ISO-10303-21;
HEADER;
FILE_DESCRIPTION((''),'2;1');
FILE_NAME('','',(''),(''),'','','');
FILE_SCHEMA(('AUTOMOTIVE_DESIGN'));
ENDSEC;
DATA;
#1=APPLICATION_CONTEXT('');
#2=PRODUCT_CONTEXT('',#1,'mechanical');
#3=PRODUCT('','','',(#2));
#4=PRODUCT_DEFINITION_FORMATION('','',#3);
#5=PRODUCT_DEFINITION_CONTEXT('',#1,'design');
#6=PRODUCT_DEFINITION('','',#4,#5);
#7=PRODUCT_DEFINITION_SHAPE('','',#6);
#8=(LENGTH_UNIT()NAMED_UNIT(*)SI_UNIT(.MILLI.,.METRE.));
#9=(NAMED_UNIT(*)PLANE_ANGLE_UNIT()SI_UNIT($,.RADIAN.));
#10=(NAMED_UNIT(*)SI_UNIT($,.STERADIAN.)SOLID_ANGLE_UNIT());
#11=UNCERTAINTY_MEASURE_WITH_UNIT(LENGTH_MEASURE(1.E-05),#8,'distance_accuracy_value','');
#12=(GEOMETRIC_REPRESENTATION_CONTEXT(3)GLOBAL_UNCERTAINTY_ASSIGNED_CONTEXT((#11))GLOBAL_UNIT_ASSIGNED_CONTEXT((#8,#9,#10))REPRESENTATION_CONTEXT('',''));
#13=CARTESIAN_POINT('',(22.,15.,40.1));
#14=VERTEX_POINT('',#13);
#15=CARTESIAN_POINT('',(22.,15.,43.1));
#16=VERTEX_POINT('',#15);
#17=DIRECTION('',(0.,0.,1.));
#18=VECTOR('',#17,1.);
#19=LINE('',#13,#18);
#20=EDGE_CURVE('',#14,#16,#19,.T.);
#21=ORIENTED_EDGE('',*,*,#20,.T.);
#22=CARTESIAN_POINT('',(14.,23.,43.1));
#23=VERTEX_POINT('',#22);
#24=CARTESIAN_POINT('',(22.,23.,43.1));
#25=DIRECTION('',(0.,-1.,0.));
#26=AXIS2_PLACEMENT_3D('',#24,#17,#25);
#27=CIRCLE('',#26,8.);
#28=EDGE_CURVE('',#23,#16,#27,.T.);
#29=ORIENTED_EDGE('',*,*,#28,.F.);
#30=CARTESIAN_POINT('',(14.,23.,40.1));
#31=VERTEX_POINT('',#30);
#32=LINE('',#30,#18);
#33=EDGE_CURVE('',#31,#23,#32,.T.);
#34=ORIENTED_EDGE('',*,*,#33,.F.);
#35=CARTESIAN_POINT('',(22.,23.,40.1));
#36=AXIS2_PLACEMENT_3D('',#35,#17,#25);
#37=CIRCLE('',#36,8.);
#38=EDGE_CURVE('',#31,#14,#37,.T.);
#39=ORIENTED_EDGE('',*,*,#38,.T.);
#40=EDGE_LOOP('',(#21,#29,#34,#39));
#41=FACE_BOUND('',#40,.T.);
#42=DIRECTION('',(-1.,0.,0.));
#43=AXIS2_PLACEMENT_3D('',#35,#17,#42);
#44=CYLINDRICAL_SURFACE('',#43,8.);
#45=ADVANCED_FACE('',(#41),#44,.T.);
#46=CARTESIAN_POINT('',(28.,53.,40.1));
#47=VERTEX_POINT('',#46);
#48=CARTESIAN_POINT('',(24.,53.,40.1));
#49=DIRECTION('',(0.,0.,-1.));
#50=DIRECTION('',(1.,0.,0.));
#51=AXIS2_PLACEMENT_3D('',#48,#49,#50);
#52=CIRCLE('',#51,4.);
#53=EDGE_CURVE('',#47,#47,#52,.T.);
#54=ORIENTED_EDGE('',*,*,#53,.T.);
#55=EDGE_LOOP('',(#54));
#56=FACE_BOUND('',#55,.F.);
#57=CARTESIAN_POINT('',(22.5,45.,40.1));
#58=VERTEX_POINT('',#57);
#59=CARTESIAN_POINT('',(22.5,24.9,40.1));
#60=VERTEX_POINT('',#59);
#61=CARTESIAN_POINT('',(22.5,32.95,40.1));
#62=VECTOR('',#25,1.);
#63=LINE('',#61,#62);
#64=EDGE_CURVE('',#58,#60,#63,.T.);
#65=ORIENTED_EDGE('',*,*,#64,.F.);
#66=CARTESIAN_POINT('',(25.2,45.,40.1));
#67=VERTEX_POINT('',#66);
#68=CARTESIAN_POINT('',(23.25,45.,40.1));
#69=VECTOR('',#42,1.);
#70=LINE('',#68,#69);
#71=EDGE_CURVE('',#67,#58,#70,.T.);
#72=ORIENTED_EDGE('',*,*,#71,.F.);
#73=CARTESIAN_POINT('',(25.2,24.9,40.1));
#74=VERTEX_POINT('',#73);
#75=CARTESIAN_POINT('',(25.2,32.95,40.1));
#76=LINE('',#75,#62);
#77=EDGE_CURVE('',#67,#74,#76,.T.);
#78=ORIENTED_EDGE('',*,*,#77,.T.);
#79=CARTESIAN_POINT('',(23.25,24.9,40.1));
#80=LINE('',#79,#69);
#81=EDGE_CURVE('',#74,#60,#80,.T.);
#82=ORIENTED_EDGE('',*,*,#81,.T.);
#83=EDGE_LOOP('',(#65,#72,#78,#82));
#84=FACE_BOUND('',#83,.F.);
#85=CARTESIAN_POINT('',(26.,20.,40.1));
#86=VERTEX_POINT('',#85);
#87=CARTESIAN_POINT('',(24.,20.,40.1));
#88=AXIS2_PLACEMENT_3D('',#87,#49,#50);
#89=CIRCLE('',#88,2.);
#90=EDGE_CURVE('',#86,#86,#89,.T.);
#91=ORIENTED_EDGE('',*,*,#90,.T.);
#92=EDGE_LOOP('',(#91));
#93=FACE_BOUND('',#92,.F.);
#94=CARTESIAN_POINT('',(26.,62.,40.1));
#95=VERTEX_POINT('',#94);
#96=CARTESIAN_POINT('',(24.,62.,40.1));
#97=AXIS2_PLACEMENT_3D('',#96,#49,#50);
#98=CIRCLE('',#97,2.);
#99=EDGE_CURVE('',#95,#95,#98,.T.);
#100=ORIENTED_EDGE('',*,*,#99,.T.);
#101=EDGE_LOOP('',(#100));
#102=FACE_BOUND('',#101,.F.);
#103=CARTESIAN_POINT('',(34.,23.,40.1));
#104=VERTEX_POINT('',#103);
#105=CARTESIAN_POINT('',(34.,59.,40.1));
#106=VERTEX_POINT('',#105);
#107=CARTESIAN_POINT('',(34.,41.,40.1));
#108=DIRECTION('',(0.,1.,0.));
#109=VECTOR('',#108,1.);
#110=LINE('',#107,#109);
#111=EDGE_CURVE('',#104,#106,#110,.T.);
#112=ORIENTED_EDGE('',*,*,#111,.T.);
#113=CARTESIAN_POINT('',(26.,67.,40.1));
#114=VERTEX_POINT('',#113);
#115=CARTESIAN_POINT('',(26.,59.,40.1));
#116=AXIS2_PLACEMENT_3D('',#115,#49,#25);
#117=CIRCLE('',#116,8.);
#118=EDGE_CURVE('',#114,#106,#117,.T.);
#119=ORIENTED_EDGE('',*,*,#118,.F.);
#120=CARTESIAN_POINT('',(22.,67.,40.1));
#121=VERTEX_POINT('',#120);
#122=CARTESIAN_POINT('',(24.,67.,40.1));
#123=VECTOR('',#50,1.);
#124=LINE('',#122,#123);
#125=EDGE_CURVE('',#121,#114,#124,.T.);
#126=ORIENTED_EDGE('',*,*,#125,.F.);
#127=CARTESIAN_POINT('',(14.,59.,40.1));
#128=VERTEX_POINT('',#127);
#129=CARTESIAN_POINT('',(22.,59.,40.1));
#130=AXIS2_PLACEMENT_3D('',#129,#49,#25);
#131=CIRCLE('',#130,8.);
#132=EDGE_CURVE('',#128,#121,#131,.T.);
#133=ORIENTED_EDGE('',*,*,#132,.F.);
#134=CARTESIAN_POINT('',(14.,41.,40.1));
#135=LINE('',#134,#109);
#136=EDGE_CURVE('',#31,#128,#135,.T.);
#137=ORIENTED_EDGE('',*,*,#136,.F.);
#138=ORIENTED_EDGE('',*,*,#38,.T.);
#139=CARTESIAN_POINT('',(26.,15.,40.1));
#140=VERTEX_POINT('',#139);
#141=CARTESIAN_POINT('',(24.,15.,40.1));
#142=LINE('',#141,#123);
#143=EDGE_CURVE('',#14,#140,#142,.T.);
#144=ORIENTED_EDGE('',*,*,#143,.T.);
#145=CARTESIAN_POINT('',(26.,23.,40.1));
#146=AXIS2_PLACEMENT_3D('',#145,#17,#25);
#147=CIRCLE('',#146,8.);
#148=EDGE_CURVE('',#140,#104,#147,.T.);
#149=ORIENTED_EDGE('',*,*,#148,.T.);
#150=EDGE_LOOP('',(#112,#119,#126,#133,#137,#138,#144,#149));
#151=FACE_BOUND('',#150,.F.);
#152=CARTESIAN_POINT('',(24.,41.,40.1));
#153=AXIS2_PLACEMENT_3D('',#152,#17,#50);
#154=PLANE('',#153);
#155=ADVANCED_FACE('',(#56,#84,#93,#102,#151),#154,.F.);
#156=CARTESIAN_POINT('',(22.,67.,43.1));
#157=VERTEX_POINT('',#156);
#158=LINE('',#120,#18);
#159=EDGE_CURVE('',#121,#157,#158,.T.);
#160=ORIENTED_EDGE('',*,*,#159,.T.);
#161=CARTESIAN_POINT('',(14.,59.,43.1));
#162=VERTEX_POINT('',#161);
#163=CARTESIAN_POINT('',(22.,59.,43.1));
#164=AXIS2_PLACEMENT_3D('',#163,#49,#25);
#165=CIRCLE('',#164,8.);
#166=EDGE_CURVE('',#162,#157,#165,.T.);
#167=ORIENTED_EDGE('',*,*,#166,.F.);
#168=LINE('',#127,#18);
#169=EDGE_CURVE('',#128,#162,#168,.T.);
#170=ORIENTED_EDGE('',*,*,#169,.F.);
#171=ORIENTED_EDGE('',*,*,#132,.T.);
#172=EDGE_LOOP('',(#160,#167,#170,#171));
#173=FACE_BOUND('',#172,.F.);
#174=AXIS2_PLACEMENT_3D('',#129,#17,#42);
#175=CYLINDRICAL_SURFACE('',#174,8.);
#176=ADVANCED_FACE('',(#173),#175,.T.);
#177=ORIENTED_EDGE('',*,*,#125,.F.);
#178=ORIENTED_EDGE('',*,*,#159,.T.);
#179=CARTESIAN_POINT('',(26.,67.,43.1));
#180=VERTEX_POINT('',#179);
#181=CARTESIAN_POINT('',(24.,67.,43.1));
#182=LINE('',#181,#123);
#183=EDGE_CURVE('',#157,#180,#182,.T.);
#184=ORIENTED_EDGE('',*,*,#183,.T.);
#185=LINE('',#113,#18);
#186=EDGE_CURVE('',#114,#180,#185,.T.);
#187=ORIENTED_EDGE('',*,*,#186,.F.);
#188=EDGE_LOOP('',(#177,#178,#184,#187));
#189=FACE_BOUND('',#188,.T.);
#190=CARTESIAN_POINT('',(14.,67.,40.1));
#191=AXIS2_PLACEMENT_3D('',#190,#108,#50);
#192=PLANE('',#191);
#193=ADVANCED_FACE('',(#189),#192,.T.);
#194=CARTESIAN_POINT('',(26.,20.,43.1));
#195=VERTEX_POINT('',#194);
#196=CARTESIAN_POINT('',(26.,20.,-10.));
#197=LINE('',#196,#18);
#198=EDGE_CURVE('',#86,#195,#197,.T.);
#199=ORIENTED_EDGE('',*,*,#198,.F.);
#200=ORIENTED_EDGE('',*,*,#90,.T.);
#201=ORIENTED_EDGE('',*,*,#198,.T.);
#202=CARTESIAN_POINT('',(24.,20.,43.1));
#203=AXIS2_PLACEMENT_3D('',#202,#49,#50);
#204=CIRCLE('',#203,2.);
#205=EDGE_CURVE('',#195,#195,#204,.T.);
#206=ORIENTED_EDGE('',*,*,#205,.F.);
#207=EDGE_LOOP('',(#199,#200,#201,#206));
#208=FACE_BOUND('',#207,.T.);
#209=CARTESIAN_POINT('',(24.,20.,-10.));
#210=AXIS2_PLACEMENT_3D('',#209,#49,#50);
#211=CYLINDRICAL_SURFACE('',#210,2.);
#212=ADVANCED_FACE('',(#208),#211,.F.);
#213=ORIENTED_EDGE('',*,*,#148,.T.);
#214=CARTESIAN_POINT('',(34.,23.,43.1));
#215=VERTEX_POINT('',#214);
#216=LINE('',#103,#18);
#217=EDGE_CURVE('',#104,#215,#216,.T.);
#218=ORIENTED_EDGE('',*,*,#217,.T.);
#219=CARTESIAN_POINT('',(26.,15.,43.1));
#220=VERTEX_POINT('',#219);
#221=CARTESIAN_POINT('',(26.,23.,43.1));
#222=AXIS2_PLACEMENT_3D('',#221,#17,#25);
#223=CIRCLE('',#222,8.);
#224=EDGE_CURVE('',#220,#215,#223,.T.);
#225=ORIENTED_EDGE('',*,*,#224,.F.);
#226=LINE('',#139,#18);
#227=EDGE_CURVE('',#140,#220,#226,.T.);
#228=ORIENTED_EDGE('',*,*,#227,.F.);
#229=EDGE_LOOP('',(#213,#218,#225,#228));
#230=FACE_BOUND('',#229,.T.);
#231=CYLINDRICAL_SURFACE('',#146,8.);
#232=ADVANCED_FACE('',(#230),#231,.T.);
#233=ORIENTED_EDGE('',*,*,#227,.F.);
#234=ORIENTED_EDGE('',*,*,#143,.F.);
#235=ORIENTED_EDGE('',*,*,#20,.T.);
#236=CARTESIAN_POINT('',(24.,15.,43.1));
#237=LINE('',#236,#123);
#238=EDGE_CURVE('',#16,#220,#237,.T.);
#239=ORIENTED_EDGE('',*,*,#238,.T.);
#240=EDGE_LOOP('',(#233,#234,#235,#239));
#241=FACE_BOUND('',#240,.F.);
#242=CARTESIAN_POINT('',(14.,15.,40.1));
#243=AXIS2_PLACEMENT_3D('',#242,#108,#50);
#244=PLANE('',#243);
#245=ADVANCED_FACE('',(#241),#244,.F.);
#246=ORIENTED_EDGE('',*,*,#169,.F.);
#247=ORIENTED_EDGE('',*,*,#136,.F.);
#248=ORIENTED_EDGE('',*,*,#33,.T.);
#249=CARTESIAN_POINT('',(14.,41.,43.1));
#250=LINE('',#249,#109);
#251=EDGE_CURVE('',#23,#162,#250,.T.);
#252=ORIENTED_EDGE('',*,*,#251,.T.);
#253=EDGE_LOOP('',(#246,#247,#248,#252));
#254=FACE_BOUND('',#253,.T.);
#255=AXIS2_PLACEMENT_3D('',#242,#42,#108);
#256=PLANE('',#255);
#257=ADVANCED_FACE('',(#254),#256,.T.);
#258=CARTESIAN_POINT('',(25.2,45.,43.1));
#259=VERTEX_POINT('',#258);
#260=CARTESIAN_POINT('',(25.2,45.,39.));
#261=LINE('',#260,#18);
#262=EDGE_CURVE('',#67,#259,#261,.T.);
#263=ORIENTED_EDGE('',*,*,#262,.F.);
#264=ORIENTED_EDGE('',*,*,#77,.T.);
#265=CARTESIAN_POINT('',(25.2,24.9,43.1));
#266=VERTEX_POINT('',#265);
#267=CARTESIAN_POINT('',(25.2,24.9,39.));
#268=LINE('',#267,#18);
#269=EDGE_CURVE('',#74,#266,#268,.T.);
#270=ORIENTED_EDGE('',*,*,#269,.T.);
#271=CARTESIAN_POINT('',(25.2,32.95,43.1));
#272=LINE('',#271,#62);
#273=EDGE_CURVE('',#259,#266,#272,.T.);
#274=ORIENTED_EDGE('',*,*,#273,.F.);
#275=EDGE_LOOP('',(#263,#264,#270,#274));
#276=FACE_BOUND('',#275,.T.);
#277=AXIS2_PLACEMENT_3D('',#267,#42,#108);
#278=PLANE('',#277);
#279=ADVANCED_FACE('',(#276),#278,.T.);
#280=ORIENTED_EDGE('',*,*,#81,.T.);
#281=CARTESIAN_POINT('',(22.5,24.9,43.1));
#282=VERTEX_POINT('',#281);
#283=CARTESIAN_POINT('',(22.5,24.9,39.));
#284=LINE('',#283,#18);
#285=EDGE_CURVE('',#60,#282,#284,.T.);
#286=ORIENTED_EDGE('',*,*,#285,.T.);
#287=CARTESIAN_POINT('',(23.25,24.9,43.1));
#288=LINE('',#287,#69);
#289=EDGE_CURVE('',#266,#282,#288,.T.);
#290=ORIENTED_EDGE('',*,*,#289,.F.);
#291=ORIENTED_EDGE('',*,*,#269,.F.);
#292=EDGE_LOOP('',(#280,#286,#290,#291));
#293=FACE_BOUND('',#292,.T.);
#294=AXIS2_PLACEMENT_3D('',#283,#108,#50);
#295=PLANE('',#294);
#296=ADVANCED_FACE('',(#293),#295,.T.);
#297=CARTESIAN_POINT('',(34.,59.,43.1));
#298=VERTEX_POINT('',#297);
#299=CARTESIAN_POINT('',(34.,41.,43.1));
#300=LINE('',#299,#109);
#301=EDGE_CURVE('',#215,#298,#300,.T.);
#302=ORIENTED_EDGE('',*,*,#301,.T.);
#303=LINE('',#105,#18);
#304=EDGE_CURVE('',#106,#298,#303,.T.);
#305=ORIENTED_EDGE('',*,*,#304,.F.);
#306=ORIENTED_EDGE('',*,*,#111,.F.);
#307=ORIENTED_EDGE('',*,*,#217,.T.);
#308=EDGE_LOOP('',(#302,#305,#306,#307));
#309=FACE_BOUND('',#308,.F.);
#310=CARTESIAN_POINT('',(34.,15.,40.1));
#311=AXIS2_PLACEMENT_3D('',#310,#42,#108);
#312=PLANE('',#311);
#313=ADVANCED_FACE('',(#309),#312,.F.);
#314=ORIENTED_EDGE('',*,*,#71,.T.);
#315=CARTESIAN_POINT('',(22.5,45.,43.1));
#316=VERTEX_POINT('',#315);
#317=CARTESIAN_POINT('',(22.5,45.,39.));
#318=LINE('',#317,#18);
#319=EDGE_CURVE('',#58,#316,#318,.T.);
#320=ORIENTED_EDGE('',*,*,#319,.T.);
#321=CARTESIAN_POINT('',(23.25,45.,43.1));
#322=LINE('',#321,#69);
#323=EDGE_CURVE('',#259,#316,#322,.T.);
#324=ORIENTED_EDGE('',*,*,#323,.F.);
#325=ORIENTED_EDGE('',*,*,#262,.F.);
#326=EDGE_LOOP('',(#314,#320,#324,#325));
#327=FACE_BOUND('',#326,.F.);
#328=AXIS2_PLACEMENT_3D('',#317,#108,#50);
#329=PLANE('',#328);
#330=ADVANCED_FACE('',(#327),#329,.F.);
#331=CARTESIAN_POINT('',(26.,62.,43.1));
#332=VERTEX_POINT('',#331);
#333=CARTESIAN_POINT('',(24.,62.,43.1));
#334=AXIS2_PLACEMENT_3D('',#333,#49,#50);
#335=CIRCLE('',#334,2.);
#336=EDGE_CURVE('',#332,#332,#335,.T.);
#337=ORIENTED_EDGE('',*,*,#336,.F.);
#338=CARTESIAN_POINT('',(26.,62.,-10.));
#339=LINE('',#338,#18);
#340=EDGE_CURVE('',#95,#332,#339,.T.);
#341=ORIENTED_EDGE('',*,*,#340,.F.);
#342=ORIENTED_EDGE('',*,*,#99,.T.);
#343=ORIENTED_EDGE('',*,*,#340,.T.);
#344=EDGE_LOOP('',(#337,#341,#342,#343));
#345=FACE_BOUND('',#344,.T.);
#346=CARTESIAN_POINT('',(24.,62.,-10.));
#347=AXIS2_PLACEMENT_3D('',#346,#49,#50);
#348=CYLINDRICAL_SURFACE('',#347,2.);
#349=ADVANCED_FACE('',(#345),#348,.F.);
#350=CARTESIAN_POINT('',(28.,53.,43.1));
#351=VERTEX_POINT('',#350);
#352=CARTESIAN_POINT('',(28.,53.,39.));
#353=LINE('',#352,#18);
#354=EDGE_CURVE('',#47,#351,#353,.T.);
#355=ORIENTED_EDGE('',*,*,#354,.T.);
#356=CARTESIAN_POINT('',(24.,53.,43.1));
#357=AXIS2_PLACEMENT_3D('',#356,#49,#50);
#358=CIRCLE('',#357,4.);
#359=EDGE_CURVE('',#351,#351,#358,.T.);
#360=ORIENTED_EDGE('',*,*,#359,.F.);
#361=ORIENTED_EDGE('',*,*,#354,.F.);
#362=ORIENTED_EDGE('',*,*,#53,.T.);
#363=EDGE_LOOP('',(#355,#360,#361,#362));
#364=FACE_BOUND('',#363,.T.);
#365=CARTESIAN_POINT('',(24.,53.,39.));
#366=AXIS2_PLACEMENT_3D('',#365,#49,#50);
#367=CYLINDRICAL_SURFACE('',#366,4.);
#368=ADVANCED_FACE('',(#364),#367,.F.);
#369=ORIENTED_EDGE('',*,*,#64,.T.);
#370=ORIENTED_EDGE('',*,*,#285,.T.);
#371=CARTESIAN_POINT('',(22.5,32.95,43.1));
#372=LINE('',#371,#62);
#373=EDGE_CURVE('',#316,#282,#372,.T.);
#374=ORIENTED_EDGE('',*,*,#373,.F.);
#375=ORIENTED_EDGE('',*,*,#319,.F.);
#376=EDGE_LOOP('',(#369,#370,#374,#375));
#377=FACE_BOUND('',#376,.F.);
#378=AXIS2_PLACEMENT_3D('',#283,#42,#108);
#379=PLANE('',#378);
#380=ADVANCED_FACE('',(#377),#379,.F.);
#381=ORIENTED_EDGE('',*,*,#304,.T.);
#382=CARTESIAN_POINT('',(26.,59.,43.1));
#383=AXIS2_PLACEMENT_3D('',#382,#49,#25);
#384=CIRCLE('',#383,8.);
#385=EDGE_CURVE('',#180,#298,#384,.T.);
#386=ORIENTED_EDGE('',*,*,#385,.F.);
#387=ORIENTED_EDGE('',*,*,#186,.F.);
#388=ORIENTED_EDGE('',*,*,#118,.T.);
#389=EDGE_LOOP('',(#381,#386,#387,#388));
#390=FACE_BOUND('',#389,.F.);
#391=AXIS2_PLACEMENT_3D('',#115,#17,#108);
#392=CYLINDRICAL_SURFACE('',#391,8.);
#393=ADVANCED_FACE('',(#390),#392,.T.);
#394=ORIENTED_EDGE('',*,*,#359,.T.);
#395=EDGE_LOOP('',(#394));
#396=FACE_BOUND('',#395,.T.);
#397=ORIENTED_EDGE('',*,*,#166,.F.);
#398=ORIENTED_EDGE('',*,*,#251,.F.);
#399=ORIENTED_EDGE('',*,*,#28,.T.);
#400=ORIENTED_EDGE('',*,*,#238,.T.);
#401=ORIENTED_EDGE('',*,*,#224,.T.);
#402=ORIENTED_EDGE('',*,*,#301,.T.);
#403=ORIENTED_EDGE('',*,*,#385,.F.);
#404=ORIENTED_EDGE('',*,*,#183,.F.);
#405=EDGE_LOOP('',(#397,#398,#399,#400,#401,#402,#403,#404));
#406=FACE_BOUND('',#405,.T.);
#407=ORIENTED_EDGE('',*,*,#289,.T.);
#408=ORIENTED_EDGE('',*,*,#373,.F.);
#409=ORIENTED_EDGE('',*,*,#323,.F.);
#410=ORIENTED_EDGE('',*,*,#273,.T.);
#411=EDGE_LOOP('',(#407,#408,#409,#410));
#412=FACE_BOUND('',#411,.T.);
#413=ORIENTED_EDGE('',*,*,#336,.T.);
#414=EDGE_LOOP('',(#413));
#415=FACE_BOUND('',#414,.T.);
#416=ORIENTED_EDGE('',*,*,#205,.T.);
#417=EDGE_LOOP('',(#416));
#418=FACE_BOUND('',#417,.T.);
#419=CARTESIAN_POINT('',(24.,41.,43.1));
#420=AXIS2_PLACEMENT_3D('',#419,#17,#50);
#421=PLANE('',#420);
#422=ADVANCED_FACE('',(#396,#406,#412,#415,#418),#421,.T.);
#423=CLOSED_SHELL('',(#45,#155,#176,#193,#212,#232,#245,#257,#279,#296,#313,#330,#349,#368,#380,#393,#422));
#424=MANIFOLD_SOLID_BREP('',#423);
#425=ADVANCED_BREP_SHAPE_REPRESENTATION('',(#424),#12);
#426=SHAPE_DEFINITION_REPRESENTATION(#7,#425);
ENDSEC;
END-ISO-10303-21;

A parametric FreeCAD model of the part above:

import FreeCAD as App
import Part
import Sketcher


def edges_at(feature, points):
    """Names of the edges that pass closest to the given points."""
    edges = feature.Shape.Edges
    near = lambda p: min(range(len(edges)), key=lambda i: edges[i].distToShape(Part.Vertex(*p))[0])
    return sorted({f"Edge{near(p) + 1}" for p in points})

doc = App.newDocument("Part")
body = doc.addObject("PartDesign::Body", "Body")

sketch1 = body.newObject("Sketcher::SketchObject", "Sketch")
sketch1.AttachmentSupport = (doc.getObject("XY_Plane"), [""])
sketch1.MapMode = "FlatFace"
sketch1.AttachmentOffset = App.Placement(App.Vector(0, 0, -10), App.Rotation())
sketch1.addGeometry(Part.Circle(App.Vector(-90, -103, 0), App.Vector(0, 0, 1), 2), False)
sketch1.addConstraint([
    Sketcher.Constraint("Diameter", 0, 4.0),
    Sketcher.Constraint("DistanceX", 0, 3, -1, 1, 90.0),
    Sketcher.Constraint("DistanceY", 0, 3, -1, 1, 103.0),
])
pad1 = body.newObject("PartDesign::Pad", "Pad")
pad1.Profile = sketch1
pad1.Length = 70
body2 = doc.addObject("PartDesign::Body", "Body001")
body2.AllowCompound = True

sketch2 = body2.newObject("Sketcher::SketchObject", "Sketch001")
sketch2.AttachmentSupport = (doc.getObject("XY_Plane001"), [""])
sketch2.MapMode = "FlatFace"
sketch2.AttachmentOffset = App.Placement(App.Vector(0, 0, -10), App.Rotation())
sketch2.addGeometry(Part.Circle(App.Vector(-90, -61, 0), App.Vector(0, 0, 1), 2), False)
sketch2.addConstraint([
    Sketcher.Constraint("Diameter", 0, 4.0),
    Sketcher.Constraint("DistanceX", 0, 3, -1, 1, 90.0),
    Sketcher.Constraint("DistanceY", 0, 3, -1, 1, 61.0),
])
pad2 = body2.newObject("PartDesign::Pad", "Pad001")
pad2.Profile = sketch2
pad2.Length = 70
doc.recompute()

boolean = body2.newObject("PartDesign::Boolean", "Boolean")
boolean.Type = "Fuse"
boolean.addObjects([body])
body3 = doc.addObject("PartDesign::Body", "Body002")
body3.AllowCompound = True
doc.recompute()

body2.Placement = App.Placement(App.Vector(114, 0, 0), App.Rotation(App.Vector(0, 0, 1), 0))
boolean2 = body3.newObject("PartDesign::Boolean", "Boolean001")
boolean2.Type = "Fuse"
boolean2.addObjects([body2])
body4 = doc.addObject("PartDesign::Body", "Body003")

sketch3 = body4.newObject("Sketcher::SketchObject", "Sketch002")
sketch3.AttachmentSupport = (doc.getObject("XY_Plane003"), [""])
sketch3.MapMode = "FlatFace"
sketch3.AttachmentOffset = App.Placement(App.Vector(0, 0, 39), App.Rotation())
sketch3.addGeometry(Part.Circle(App.Vector(24, -70, 0), App.Vector(0, 0, 1), 4), False)
sketch3.addConstraint([
    Sketcher.Constraint("Diameter", 0, 8.0),
    Sketcher.Constraint("DistanceX", -1, 1, 0, 3, 24.0),
    Sketcher.Constraint("DistanceY", 0, 3, -1, 1, 70.0),
])
pad3 = body4.newObject("PartDesign::Pad", "Pad002")
pad3.Profile = sketch3
pad3.Length = 5
body5 = doc.addObject("PartDesign::Body", "Body004")

sketch4 = body5.newObject("Sketcher::SketchObject", "Sketch003")
sketch4.AttachmentSupport = (doc.getObject("XY_Plane004"), [""])
sketch4.MapMode = "FlatFace"
sketch4.AttachmentOffset = App.Placement(App.Vector(0, 0, 39), App.Rotation())
sketch4.addGeometry([
    Part.LineSegment(App.Vector(22.5, -78, 0), App.Vector(22.5, -98.1, 0)),
    Part.LineSegment(App.Vector(22.5, -98.1, 0), App.Vector(25.2, -98.1, 0)),
    Part.LineSegment(App.Vector(25.2, -98.1, 0), App.Vector(25.2, -78, 0)),
    Part.LineSegment(App.Vector(25.2, -78, 0), App.Vector(22.5, -78, 0)),
], False)
sketch4.addConstraint([
    Sketcher.Constraint("Coincident", 0, 2, 1, 1),
    Sketcher.Constraint("Coincident", 1, 2, 2, 1),
    Sketcher.Constraint("Coincident", 2, 2, 3, 1),
    Sketcher.Constraint("Coincident", 3, 2, 0, 1),
    Sketcher.Constraint("Vertical", 0),
    Sketcher.Constraint("Horizontal", 1),
    Sketcher.Constraint("Vertical", 2),
    Sketcher.Constraint("Horizontal", 3),
    Sketcher.Constraint("DistanceX", 1, 1, 1, 2, 2.7),
    Sketcher.Constraint("DistanceY", 0, 2, 0, 1, 20.1),
    Sketcher.Constraint("DistanceY", 2, 2, -1, 1, 78.0),
    Sketcher.Constraint("DistanceX", -1, 1, 0, 2, 22.5),
])
pad4 = body5.newObject("PartDesign::Pad", "Pad003")
pad4.Profile = sketch4
pad4.Length = 5
body6 = doc.addObject("PartDesign::Body", "Body005")

sketch5 = body6.newObject("Sketcher::SketchObject", "Sketch004")
sketch5.AttachmentSupport = (doc.getObject("XY_Plane005"), [""])
sketch5.MapMode = "FlatFace"
sketch5.AttachmentOffset = App.Placement(App.Vector(0, 0, 40.1), App.Rotation())
sketch5.addGeometry([
    Part.LineSegment(App.Vector(14, -56, 0), App.Vector(14, -108, 0)),
    Part.LineSegment(App.Vector(14, -108, 0), App.Vector(34, -108, 0)),
    Part.LineSegment(App.Vector(34, -108, 0), App.Vector(34, -56, 0)),
    Part.LineSegment(App.Vector(34, -56, 0), App.Vector(14, -56, 0)),
], False)
sketch5.addConstraint([
    Sketcher.Constraint("Coincident", 0, 2, 1, 1),
    Sketcher.Constraint("Coincident", 1, 2, 2, 1),
    Sketcher.Constraint("Coincident", 2, 2, 3, 1),
    Sketcher.Constraint("Coincident", 3, 2, 0, 1),
    Sketcher.Constraint("Vertical", 0),
    Sketcher.Constraint("Horizontal", 1),
    Sketcher.Constraint("Vertical", 2),
    Sketcher.Constraint("Horizontal", 3),
    Sketcher.Constraint("DistanceX", 1, 1, 1, 2, 20.0),
    Sketcher.Constraint("DistanceY", 0, 2, 0, 1, 52.0),
    Sketcher.Constraint("DistanceX", -1, 1, 0, 2, 14.0),
    Sketcher.Constraint("DistanceY", 0, 2, -1, 1, 108.0),
])
pad5 = body6.newObject("PartDesign::Pad", "Pad004")
pad5.Profile = sketch5
pad5.Length = 3
doc.recompute()

boolean3 = body6.newObject("PartDesign::Boolean", "Boolean002")
boolean3.Type = "Cut"
boolean3.addObjects([body5])
doc.recompute()

fillet = body6.newObject("PartDesign::Fillet", "Fillet")
fillet.Base = (boolean3, edges_at(boolean3, [
    (14, -108, 41.6),
    (14, -56, 41.6),
    (34, -108, 41.6),
    (34, -56, 41.6),
]))
fillet.Radius = 8
doc.recompute()

boolean4 = body6.newObject("PartDesign::Boolean", "Boolean003")
boolean4.Type = "Cut"
boolean4.addObjects([body4])
doc.recompute()

boolean5 = body6.newObject("PartDesign::Boolean", "Boolean004")
boolean5.Type = "Cut"
boolean5.addObjects([body3])
body7 = doc.addObject("PartDesign::Body", "Body006")
doc.recompute()

body6.Placement = App.Placement(App.Vector(0, 123, 0), App.Rotation(App.Vector(0, 0, 1), 0))
boolean6 = body7.newObject("PartDesign::Boolean", "Boolean005")
boolean6.Type = "Fuse"
boolean6.addObjects([body6])

doc.recompute()
